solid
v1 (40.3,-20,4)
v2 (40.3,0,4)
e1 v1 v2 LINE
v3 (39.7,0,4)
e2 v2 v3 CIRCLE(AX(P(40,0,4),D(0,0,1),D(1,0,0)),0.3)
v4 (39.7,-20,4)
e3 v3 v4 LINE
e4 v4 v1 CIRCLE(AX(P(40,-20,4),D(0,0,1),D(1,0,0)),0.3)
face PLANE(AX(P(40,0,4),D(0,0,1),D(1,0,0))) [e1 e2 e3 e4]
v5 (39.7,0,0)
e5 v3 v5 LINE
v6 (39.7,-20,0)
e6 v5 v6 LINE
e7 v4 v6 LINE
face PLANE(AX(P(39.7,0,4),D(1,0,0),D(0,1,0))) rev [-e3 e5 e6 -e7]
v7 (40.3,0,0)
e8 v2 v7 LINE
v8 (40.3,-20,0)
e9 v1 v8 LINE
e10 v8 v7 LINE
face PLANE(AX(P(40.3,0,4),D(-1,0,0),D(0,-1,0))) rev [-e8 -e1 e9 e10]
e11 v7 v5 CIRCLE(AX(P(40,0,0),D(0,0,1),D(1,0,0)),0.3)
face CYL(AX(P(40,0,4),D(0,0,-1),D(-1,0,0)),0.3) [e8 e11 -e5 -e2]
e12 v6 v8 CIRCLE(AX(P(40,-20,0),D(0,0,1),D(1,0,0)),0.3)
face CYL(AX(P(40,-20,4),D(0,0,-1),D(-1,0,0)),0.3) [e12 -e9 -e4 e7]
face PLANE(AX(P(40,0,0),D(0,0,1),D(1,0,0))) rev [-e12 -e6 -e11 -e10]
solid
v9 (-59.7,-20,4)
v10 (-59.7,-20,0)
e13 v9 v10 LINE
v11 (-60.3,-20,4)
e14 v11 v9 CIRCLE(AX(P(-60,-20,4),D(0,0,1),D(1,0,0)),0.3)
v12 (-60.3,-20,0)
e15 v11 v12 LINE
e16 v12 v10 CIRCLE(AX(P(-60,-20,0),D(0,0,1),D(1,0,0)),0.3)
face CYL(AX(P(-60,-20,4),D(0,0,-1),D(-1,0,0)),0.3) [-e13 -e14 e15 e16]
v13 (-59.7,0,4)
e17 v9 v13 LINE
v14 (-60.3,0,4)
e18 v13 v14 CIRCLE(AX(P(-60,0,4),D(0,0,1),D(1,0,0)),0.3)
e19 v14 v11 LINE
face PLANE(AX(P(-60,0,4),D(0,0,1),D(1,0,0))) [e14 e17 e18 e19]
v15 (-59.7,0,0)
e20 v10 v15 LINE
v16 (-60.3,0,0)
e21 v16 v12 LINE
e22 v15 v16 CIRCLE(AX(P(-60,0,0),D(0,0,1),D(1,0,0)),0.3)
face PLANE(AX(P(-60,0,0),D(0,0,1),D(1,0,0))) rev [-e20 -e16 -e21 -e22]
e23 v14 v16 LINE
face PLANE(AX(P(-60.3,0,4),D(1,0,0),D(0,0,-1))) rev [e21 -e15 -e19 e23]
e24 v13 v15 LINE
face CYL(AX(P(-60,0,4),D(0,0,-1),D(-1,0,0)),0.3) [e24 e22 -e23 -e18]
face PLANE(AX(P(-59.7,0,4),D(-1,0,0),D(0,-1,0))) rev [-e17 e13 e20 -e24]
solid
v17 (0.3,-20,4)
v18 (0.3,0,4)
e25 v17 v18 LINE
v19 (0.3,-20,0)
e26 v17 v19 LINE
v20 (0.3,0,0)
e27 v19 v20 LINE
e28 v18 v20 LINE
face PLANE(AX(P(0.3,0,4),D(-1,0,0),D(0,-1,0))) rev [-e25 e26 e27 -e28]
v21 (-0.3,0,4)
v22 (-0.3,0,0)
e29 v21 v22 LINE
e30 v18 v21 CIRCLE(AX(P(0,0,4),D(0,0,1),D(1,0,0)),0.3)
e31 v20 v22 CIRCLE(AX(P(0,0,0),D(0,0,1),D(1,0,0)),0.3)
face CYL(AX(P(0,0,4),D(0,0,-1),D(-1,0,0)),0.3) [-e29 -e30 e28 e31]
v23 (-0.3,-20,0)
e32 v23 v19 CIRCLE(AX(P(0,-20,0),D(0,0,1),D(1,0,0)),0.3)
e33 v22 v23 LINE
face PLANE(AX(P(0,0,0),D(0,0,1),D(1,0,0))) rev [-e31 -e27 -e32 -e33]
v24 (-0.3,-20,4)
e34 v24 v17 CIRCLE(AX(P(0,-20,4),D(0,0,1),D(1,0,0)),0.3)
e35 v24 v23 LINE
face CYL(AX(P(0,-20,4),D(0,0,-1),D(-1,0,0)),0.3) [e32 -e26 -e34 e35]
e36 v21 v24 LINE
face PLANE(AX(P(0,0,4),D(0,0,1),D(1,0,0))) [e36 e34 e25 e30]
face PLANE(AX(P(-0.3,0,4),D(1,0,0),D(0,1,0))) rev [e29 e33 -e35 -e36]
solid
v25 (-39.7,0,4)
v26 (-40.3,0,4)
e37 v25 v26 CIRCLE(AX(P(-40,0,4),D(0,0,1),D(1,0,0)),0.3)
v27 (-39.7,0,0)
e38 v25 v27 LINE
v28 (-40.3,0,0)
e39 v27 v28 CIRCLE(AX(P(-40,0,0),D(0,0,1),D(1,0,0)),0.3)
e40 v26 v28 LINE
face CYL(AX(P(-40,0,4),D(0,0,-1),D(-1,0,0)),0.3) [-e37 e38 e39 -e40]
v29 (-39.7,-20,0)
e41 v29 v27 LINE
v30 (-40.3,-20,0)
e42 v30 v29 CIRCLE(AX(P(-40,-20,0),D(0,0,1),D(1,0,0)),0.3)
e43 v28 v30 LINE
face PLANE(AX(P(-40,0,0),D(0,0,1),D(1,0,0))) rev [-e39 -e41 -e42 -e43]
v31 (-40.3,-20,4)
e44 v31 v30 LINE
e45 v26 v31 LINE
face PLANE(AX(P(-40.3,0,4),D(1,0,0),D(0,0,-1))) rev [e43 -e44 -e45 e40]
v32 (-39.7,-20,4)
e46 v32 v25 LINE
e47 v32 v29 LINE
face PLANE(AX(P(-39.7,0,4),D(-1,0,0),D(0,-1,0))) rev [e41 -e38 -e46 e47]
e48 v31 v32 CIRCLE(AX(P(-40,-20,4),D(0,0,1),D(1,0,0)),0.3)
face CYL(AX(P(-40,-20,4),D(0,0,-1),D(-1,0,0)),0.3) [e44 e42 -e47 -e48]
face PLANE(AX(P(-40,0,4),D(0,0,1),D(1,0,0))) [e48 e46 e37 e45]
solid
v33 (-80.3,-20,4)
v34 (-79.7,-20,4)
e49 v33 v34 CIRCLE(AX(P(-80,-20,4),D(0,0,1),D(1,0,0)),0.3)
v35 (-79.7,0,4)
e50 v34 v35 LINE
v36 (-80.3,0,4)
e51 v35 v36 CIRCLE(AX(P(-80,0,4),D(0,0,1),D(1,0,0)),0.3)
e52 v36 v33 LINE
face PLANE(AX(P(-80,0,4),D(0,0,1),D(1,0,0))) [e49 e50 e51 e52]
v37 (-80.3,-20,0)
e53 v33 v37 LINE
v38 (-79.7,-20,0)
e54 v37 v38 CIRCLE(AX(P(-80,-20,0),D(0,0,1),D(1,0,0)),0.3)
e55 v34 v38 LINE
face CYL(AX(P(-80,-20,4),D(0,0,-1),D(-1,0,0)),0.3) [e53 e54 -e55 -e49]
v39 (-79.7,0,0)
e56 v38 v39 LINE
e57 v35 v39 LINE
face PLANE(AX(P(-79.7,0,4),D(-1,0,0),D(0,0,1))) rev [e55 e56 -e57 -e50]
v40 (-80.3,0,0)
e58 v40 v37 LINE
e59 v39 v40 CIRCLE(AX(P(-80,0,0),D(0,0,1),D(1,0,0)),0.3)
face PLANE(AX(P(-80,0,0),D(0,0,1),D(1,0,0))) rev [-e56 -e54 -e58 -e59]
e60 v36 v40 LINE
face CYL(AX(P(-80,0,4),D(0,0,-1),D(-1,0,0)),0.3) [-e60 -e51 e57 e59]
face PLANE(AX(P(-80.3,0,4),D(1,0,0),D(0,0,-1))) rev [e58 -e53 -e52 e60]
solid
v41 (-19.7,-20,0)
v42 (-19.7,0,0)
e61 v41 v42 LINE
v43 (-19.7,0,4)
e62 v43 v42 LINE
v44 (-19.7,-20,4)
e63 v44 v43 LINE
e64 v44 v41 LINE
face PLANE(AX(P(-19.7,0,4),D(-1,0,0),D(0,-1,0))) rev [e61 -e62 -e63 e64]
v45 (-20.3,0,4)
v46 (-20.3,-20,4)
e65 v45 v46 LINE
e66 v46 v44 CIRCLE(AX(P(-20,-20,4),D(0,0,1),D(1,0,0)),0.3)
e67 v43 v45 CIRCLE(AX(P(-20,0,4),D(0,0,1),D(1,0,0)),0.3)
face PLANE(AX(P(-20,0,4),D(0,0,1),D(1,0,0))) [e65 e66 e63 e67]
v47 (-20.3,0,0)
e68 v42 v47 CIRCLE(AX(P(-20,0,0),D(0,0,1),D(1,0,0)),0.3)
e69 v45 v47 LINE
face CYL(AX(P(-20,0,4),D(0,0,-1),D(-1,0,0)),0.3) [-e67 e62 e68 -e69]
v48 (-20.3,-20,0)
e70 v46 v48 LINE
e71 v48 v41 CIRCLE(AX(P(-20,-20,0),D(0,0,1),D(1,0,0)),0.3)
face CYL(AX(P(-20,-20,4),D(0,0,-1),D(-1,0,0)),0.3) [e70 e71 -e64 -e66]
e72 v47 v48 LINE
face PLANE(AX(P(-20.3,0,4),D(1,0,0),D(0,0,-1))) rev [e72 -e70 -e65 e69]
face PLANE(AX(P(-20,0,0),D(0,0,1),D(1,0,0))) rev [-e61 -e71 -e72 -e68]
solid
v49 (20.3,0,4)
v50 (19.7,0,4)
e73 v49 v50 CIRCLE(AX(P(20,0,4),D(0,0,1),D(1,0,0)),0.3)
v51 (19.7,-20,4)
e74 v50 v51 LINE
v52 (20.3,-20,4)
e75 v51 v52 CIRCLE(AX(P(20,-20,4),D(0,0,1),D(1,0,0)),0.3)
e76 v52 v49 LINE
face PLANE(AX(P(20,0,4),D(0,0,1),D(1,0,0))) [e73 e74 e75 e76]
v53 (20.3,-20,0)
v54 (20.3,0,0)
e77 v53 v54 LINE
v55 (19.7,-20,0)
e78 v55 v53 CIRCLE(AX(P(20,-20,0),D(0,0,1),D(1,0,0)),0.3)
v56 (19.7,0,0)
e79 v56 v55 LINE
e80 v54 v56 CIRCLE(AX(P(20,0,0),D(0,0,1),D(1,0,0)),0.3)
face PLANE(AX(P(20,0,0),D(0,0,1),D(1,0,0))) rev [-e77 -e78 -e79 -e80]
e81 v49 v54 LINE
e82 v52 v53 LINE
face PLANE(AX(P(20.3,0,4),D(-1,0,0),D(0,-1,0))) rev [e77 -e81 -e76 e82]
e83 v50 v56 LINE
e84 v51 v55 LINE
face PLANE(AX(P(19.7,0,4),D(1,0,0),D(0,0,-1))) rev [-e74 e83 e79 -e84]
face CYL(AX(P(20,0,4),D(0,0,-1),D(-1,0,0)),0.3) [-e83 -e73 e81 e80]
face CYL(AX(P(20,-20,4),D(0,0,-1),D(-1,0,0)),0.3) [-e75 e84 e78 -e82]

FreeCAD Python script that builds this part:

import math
import FreeCAD as App
import Part
import Sketcher
from FreeCAD import Vector
Q = App.Units.Quantity

doc = App.newDocument("Part")
body = doc.addObject("PartDesign::Body", "Body")

sketch1 = body.newObject("Sketcher::SketchObject", "Sketch")
sketch1.AttachmentSupport = (doc.getObject("XY_Plane"), [""])
sketch1.MapMode = "FlatFace"
sketch1.addGeometry(Part.LineSegment(Vector(0.3, -20, 0), Vector(0.3, 0, 0)), False)
sketch1.addGeometry(Part.ArcOfCircle(Part.Circle(Vector(0, 0, 0), Vector(0, 0, 1), 0.3), math.radians(0), math.radians(180)), False)
sketch1.addGeometry(Part.LineSegment(Vector(-0.3, 0, 0), Vector(-0.3, -20, 0)), False)
sketch1.addGeometry(Part.ArcOfCircle(Part.Circle(Vector(0, -20, 0), Vector(0, 0, 1), 0.3), math.radians(180), math.radians(360)), False)
sketch1.addConstraint(Sketcher.Constraint("Tangent", 0, 2, 1, 1))
sketch1.addConstraint(Sketcher.Constraint("Tangent", 1, 2, 2, 1))
sketch1.addConstraint(Sketcher.Constraint("Tangent", 2, 2, 3, 1))
sketch1.addConstraint(Sketcher.Constraint("Tangent", 3, 2, 0, 1))
sketch1.addConstraint(Sketcher.Constraint("Vertical", 0))
sketch1.addConstraint(Sketcher.Constraint("Vertical", 2))
sketch1.addConstraint(Sketcher.Constraint("Coincident", 1, 3, -1, 1))
sketch1.addConstraint(Sketcher.Constraint("Radius", 1, Q("0.3 mm")))
sketch1.addConstraint(Sketcher.Constraint("DistanceY", 0, 1, 0, 2, Q("20 mm")))
pad1 = body.newObject("PartDesign::Pad", "Pad")
pad1.Profile = sketch1
pad1.Length = 4
body2 = doc.addObject("PartDesign::Body", "Body001")

sketch2 = body2.newObject("Sketcher::SketchObject", "Sketch001")
sketch2.AttachmentSupport = (doc.getObject("XY_Plane001"), [""])
sketch2.MapMode = "FlatFace"
sketch2.addGeometry(Part.LineSegment(Vector(40.3, -20, 0), Vector(40.3, 0, 0)), False)
sketch2.addGeometry(Part.ArcOfCircle(Part.Circle(Vector(40, 0, 0), Vector(0, 0, 1), 0.3), math.radians(0), math.radians(180)), False)
sketch2.addGeometry(Part.LineSegment(Vector(39.7, 0, 0), Vector(39.7, -20, 0)), False)
sketch2.addGeometry(Part.ArcOfCircle(Part.Circle(Vector(40, -20, 0), Vector(0, 0, 1), 0.3), math.radians(180), math.radians(360)), False)
sketch2.addConstraint(Sketcher.Constraint("Tangent", 0, 2, 1, 1))
sketch2.addConstraint(Sketcher.Constraint("Tangent", 1, 2, 2, 1))
sketch2.addConstraint(Sketcher.Constraint("Tangent", 2, 2, 3, 1))
sketch2.addConstraint(Sketcher.Constraint("Tangent", 3, 2, 0, 1))
sketch2.addConstraint(Sketcher.Constraint("Vertical", 0))
sketch2.addConstraint(Sketcher.Constraint("Vertical", 2))
sketch2.addConstraint(Sketcher.Constraint("PointOnObject", 1, 3, -1))
sketch2.addConstraint(Sketcher.Constraint("Radius", 1, Q("0.3 mm")))
sketch2.addConstraint(Sketcher.Constraint("DistanceY", 0, 1, 0, 2, Q("20 mm")))
sketch2.addConstraint(Sketcher.Constraint("DistanceX", -1, 1, 1, 3, Q("40 mm")))
pad2 = body2.newObject("PartDesign::Pad", "Pad001")
pad2.Profile = sketch2
pad2.Length = 4
body3 = doc.addObject("PartDesign::Body", "Body002")

sketch3 = body3.newObject("Sketcher::SketchObject", "Sketch002")
sketch3.AttachmentSupport = (doc.getObject("XY_Plane002"), [""])
sketch3.MapMode = "FlatFace"
sketch3.addGeometry(Part.LineSegment(Vector(20.3, -20, 0), Vector(20.3, 0, 0)), False)
sketch3.addGeometry(Part.ArcOfCircle(Part.Circle(Vector(20, 0, 0), Vector(0, 0, 1), 0.3), math.radians(0), math.radians(180)), False)
sketch3.addGeometry(Part.LineSegment(Vector(19.7, 0, 0), Vector(19.7, -20, 0)), False)
sketch3.addGeometry(Part.ArcOfCircle(Part.Circle(Vector(20, -20, 0), Vector(0, 0, 1), 0.3), math.radians(180), math.radians(360)), False)
sketch3.addConstraint(Sketcher.Constraint("Tangent", 0, 2, 1, 1))
sketch3.addConstraint(Sketcher.Constraint("Tangent", 1, 2, 2, 1))
sketch3.addConstraint(Sketcher.Constraint("Tangent", 2, 2, 3, 1))
sketch3.addConstraint(Sketcher.Constraint("Tangent", 3, 2, 0, 1))
sketch3.addConstraint(Sketcher.Constraint("Vertical", 0))
sketch3.addConstraint(Sketcher.Constraint("Vertical", 2))
sketch3.addConstraint(Sketcher.Constraint("PointOnObject", 1, 3, -1))
sketch3.addConstraint(Sketcher.Constraint("Radius", 1, Q("0.3 mm")))
sketch3.addConstraint(Sketcher.Constraint("DistanceY", 0, 1, 0, 2, Q("20 mm")))
sketch3.addConstraint(Sketcher.Constraint("DistanceX", -1, 1, 1, 3, Q("20 mm")))
pad3 = body3.newObject("PartDesign::Pad", "Pad002")
pad3.Profile = sketch3
pad3.Length = 4
body4 = doc.addObject("PartDesign::Body", "Body003")

sketch4 = body4.newObject("Sketcher::SketchObject", "Sketch003")
sketch4.AttachmentSupport = (doc.getObject("XY_Plane003"), [""])
sketch4.MapMode = "FlatFace"
sketch4.addGeometry(Part.LineSegment(Vector(-19.7, -20, 0), Vector(-19.7, 0, 0)), False)
sketch4.addGeometry(Part.ArcOfCircle(Part.Circle(Vector(-20, 0, 0), Vector(0, 0, 1), 0.3), math.radians(0), math.radians(180)), False)
sketch4.addGeometry(Part.LineSegment(Vector(-20.3, 0, 0), Vector(-20.3, -20, 0)), False)
sketch4.addGeometry(Part.ArcOfCircle(Part.Circle(Vector(-20, -20, 0), Vector(0, 0, 1), 0.3), math.radians(180), math.radians(360)), False)
sketch4.addConstraint(Sketcher.Constraint("Tangent", 0, 2, 1, 1))
sketch4.addConstraint(Sketcher.Constraint("Tangent", 1, 2, 2, 1))
sketch4.addConstraint(Sketcher.Constraint("Tangent", 2, 2, 3, 1))
sketch4.addConstraint(Sketcher.Constraint("Tangent", 3, 2, 0, 1))
sketch4.addConstraint(Sketcher.Constraint("Vertical", 0))
sketch4.addConstraint(Sketcher.Constraint("Vertical", 2))
sketch4.addConstraint(Sketcher.Constraint("PointOnObject", 1, 3, -1))
sketch4.addConstraint(Sketcher.Constraint("Radius", 1, Q("0.3 mm")))
sketch4.addConstraint(Sketcher.Constraint("DistanceY", 0, 1, 0, 2, Q("20 mm")))
sketch4.addConstraint(Sketcher.Constraint("DistanceX", 1, 3, -1, 1, Q("20 mm")))
pad4 = body4.newObject("PartDesign::Pad", "Pad003")
pad4.Profile = sketch4
pad4.Length = 4
body5 = doc.addObject("PartDesign::Body", "Body004")

sketch5 = body5.newObject("Sketcher::SketchObject", "Sketch004")
sketch5.AttachmentSupport = (doc.getObject("XY_Plane004"), [""])
sketch5.MapMode = "FlatFace"
sketch5.addGeometry(Part.LineSegment(Vector(-39.7, -20, 0), Vector(-39.7, 0, 0)), False)
sketch5.addGeometry(Part.ArcOfCircle(Part.Circle(Vector(-40, 0, 0), Vector(0, 0, 1), 0.3), math.radians(0), math.radians(180)), False)
sketch5.addGeometry(Part.LineSegment(Vector(-40.3, 0, 0), Vector(-40.3, -20, 0)), False)
sketch5.addGeometry(Part.ArcOfCircle(Part.Circle(Vector(-40, -20, 0), Vector(0, 0, 1), 0.3), math.radians(180), math.radians(360)), False)
sketch5.addConstraint(Sketcher.Constraint("Tangent", 0, 2, 1, 1))
sketch5.addConstraint(Sketcher.Constraint("Tangent", 1, 2, 2, 1))
sketch5.addConstraint(Sketcher.Constraint("Tangent", 2, 2, 3, 1))
sketch5.addConstraint(Sketcher.Constraint("Tangent", 3, 2, 0, 1))
sketch5.addConstraint(Sketcher.Constraint("Vertical", 0))
sketch5.addConstraint(Sketcher.Constraint("Vertical", 2))
sketch5.addConstraint(Sketcher.Constraint("PointOnObject", 1, 3, -1))
sketch5.addConstraint(Sketcher.Constraint("Radius", 1, Q("0.3 mm")))
sketch5.addConstraint(Sketcher.Constraint("DistanceY", 0, 1, 0, 2, Q("20 mm")))
sketch5.addConstraint(Sketcher.Constraint("DistanceX", 1, 3, -1, 1, Q("40 mm")))
pad5 = body5.newObject("PartDesign::Pad", "Pad004")
pad5.Profile = sketch5
pad5.Length = 4
body6 = doc.addObject("PartDesign::Body", "Body005")

sketch6 = body6.newObject("Sketcher::SketchObject", "Sketch005")
sketch6.AttachmentSupport = (doc.getObject("XY_Plane005"), [""])
sketch6.MapMode = "FlatFace"
sketch6.addGeometry(Part.LineSegment(Vector(-59.7, -20, 0), Vector(-59.7, 0, 0)), False)
sketch6.addGeometry(Part.ArcOfCircle(Part.Circle(Vector(-60, 0, 0), Vector(0, 0, 1), 0.3), math.radians(0), math.radians(180)), False)
sketch6.addGeometry(Part.LineSegment(Vector(-60.3, 0, 0), Vector(-60.3, -20, 0)), False)
sketch6.addGeometry(Part.ArcOfCircle(Part.Circle(Vector(-60, -20, 0), Vector(0, 0, 1), 0.3), math.radians(180), math.radians(360)), False)
sketch6.addConstraint(Sketcher.Constraint("Tangent", 0, 2, 1, 1))
sketch6.addConstraint(Sketcher.Constraint("Tangent", 1, 2, 2, 1))
sketch6.addConstraint(Sketcher.Constraint("Tangent", 2, 2, 3, 1))
sketch6.addConstraint(Sketcher.Constraint("Tangent", 3, 2, 0, 1))
sketch6.addConstraint(Sketcher.Constraint("Vertical", 0))
sketch6.addConstraint(Sketcher.Constraint("Vertical", 2))
sketch6.addConstraint(Sketcher.Constraint("PointOnObject", 1, 3, -1))
sketch6.addConstraint(Sketcher.Constraint("Radius", 1, Q("0.3 mm")))
sketch6.addConstraint(Sketcher.Constraint("DistanceY", 0, 1, 0, 2, Q("20 mm")))
sketch6.addConstraint(Sketcher.Constraint("DistanceX", 1, 3, -1, 1, Q("60 mm")))
pad6 = body6.newObject("PartDesign::Pad", "Pad005")
pad6.Profile = sketch6
pad6.Length = 4
body7 = doc.addObject("PartDesign::Body", "Body006")

sketch7 = body7.newObject("Sketcher::SketchObject", "Sketch006")
sketch7.AttachmentSupport = (doc.getObject("XY_Plane006"), [""])
sketch7.MapMode = "FlatFace"
sketch7.addGeometry(Part.LineSegment(Vector(-79.7, -20, 0), Vector(-79.7, 0, 0)), False)
sketch7.addGeometry(Part.ArcOfCircle(Part.Circle(Vector(-80, 0, 0), Vector(0, 0, 1), 0.3), math.radians(0), math.radians(180)), False)
sketch7.addGeometry(Part.LineSegment(Vector(-80.3, 0, 0), Vector(-80.3, -20, 0)), False)
sketch7.addGeometry(Part.ArcOfCircle(Part.Circle(Vector(-80, -20, 0), Vector(0, 0, 1), 0.3), math.radians(180), math.radians(360)), False)
sketch7.addConstraint(Sketcher.Constraint("Tangent", 0, 2, 1, 1))
sketch7.addConstraint(Sketcher.Constraint("Tangent", 1, 2, 2, 1))
sketch7.addConstraint(Sketcher.Constraint("Tangent", 2, 2, 3, 1))
sketch7.addConstraint(Sketcher.Constraint("Tangent", 3, 2, 0, 1))
sketch7.addConstraint(Sketcher.Constraint("Vertical", 0))
sketch7.addConstraint(Sketcher.Constraint("Vertical", 2))
sketch7.addConstraint(Sketcher.Constraint("PointOnObject", 1, 3, -1))
sketch7.addConstraint(Sketcher.Constraint("Radius", 1, Q("0.3 mm")))
sketch7.addConstraint(Sketcher.Constraint("DistanceY", 0, 1, 0, 2, Q("20 mm")))
sketch7.addConstraint(Sketcher.Constraint("DistanceX", 1, 3, -1, 1, Q("80 mm")))
pad7 = body7.newObject("PartDesign::Pad", "Pad006")
pad7.Profile = sketch7
pad7.Length = 4

doc.recompute()
